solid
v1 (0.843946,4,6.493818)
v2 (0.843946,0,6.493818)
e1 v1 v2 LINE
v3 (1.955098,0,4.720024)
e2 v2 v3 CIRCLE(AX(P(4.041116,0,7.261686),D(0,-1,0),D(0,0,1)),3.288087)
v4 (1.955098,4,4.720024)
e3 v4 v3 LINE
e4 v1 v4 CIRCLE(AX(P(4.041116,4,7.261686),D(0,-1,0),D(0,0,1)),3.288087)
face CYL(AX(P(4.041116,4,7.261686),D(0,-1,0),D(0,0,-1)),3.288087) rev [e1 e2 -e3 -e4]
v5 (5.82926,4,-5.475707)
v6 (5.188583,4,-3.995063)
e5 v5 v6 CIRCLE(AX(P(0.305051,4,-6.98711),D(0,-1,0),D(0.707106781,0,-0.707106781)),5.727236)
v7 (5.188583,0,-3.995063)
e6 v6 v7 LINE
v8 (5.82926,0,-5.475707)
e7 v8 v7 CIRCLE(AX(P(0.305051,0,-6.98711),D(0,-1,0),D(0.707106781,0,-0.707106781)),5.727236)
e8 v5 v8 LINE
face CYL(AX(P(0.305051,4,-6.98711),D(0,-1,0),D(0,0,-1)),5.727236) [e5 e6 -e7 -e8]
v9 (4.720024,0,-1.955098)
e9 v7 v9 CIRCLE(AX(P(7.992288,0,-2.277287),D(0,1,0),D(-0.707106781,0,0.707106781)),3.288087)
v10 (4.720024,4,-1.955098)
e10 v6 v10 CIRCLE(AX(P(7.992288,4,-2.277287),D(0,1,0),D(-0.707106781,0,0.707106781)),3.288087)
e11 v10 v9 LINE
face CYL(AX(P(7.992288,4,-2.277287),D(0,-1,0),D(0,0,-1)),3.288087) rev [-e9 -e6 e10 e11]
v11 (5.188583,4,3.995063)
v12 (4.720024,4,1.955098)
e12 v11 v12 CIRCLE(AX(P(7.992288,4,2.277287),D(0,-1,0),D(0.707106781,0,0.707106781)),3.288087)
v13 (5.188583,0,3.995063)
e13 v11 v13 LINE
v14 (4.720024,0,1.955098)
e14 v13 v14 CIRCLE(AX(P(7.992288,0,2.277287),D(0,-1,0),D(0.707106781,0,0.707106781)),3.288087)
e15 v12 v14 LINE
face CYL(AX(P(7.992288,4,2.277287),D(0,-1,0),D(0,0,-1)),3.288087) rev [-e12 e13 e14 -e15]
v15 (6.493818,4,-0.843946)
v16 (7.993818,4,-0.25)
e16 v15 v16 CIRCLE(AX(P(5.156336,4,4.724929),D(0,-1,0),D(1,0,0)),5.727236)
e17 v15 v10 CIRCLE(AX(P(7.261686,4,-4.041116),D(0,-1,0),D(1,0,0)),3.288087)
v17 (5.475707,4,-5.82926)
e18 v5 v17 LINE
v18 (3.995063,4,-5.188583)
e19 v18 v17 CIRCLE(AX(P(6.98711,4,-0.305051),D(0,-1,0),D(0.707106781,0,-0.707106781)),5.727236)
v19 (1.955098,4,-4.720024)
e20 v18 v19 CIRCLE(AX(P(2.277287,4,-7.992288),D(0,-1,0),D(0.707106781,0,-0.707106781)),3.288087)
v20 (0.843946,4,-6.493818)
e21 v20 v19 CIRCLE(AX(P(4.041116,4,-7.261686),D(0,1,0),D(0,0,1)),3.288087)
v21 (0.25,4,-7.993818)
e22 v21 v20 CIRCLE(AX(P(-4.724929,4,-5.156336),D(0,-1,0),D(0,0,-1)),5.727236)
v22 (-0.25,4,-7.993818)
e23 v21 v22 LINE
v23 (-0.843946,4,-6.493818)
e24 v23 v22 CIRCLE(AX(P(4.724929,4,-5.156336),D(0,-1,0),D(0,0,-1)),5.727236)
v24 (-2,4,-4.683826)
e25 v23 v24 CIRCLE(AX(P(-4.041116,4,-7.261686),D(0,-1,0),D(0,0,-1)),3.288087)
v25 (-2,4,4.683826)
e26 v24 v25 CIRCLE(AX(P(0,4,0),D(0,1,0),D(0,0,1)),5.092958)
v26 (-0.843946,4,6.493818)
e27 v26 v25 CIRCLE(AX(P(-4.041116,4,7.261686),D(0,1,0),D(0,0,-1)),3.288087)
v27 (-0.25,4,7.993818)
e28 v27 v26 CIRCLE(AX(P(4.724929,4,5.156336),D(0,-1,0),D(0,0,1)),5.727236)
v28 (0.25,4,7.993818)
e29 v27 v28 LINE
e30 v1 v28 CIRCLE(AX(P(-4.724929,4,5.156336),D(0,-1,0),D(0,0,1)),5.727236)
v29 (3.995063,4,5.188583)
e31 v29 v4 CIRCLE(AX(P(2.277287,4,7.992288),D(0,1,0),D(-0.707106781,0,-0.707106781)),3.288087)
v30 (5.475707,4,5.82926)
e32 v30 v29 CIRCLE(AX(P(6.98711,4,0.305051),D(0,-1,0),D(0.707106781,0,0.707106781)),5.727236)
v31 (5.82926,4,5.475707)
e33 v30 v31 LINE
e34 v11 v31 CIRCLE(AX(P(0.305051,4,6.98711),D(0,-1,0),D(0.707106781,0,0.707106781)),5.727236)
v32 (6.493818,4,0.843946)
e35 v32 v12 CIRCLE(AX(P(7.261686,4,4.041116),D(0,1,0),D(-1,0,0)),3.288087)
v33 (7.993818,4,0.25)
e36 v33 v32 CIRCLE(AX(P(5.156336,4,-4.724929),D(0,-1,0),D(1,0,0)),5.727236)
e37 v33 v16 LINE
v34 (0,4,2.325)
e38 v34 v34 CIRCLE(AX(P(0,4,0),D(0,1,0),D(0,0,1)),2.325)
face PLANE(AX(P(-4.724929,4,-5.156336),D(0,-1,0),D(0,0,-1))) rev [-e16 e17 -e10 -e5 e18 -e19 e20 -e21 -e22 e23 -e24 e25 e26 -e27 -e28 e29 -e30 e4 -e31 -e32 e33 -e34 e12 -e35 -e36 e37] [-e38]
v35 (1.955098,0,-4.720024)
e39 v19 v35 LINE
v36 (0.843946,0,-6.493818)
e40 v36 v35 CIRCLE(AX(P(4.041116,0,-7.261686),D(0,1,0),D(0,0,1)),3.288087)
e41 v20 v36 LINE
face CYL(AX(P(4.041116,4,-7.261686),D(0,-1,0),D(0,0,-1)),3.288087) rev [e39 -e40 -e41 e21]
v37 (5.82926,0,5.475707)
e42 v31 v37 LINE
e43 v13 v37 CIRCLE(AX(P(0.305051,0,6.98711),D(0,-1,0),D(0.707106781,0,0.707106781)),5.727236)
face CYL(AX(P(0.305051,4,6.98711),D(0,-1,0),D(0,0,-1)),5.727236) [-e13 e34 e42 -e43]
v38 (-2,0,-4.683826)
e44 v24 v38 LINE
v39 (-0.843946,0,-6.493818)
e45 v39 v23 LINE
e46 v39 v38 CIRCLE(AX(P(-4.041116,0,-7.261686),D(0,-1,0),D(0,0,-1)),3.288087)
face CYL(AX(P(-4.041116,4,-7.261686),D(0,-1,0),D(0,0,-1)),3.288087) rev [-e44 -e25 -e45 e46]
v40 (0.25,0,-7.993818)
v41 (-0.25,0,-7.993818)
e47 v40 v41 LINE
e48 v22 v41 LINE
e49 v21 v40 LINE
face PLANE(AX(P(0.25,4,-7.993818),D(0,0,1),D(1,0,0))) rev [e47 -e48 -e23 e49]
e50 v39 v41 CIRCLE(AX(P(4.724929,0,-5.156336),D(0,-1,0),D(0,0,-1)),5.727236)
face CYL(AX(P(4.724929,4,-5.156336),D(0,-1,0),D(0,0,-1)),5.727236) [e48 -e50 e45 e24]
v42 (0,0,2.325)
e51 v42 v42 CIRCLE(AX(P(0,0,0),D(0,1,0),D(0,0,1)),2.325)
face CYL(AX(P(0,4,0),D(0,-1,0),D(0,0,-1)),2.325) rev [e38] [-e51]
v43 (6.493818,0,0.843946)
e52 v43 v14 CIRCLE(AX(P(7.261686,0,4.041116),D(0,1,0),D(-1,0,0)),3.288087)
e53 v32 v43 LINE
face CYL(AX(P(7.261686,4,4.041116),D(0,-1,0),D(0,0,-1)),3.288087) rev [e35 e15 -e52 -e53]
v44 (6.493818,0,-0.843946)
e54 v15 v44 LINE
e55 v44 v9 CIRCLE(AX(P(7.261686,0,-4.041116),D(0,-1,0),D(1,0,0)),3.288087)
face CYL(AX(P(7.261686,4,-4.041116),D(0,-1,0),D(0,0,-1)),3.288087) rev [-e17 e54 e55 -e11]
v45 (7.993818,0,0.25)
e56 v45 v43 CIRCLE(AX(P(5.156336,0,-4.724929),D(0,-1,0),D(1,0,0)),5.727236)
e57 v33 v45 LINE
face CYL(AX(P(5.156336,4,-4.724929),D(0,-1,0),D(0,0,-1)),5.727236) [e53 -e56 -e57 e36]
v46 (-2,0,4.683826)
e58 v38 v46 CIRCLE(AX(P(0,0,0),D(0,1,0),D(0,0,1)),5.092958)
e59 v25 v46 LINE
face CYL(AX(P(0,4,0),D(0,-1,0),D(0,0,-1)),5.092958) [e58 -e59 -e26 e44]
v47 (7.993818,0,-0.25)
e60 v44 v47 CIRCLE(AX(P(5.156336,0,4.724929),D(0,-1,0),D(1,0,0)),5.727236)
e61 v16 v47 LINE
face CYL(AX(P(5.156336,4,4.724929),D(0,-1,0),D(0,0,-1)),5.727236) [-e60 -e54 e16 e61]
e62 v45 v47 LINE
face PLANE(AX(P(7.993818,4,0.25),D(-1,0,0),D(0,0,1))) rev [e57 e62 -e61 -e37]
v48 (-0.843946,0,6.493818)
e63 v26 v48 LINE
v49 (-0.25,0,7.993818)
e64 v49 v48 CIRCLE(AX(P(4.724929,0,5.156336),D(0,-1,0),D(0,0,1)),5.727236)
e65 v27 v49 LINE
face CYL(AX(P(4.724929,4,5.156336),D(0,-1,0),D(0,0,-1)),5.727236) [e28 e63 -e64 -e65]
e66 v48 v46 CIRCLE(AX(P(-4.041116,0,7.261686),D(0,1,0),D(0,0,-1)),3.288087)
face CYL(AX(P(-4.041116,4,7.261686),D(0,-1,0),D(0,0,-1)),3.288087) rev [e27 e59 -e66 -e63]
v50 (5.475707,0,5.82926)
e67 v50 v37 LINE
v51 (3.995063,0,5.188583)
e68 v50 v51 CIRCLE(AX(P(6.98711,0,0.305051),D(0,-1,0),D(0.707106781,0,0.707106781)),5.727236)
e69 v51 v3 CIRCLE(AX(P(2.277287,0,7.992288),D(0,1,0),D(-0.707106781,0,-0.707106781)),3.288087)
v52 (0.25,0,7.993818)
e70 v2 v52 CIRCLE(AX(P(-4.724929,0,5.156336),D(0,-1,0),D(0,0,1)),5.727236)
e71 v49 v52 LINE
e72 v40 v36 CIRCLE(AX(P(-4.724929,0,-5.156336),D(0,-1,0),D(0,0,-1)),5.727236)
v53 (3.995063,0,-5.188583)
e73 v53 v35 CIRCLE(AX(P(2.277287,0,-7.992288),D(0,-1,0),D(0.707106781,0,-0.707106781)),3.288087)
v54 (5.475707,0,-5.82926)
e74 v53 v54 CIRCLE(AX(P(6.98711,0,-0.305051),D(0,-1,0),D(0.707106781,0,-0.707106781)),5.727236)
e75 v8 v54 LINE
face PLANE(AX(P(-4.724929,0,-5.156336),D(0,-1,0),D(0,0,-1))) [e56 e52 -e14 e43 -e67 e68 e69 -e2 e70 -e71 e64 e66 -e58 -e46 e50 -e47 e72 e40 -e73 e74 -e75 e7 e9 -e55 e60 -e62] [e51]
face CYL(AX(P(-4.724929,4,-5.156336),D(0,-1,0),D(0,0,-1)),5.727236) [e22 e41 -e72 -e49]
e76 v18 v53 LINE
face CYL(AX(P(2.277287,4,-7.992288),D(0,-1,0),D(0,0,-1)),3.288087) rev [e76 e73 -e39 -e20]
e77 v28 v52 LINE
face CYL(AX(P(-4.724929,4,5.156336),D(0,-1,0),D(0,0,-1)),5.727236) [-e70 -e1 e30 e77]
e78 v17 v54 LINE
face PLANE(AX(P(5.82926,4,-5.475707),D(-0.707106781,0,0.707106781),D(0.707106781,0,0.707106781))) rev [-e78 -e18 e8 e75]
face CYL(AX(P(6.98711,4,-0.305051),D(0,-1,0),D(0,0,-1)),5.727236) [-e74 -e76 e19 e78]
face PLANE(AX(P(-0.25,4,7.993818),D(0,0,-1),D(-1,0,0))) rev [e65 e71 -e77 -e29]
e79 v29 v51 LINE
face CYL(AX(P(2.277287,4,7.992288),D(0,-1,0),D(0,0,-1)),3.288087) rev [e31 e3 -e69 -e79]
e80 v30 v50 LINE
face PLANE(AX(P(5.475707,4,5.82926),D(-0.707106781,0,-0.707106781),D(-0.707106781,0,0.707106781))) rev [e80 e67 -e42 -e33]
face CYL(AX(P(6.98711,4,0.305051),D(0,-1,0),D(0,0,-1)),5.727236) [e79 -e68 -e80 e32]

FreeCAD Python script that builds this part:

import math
import FreeCAD as App
import Part
import Sketcher
from FreeCAD import Vector
Q = App.Units.Quantity

doc = App.newDocument("Part")
body = doc.addObject("PartDesign::Body", "Body")

sketch1 = body.newObject("Sketcher::SketchObject", "Sketch")
sketch1.AttachmentSupport = (doc.getObject("XZ_Plane"), [""])
sketch1.MapMode = "FlatFace"
sketch1.addGeometry([
    Part.ArcOfCircle(Part.Circle(Vector(-4.724929, -5.156336, 0), Vector(0, 0, 1), 5.727236), math.radians(-29.698546), math.radians(-13.504997)),
    Part.LineSegment(Vector(0.25, -7.993818, 0), Vector(-0.25, -7.993818, 0)),
    Part.ArcOfCircle(Part.Circle(Vector(4.724929, -5.156336, 0), Vector(0, 0, 1), 5.727236), math.radians(-166.495003), math.radians(-150.301454)),
    Part.ArcOfCircle(Part.Circle(Vector(-4.041116, -7.261686, 0), Vector(0, 0, 1), 3.288087), math.radians(13.504997), math.radians(51.628281)),
    Part.LineSegment(Vector(-2, -4.683826, 0), Vector(2, -4.683826, 0)),
    Part.ArcOfCircle(Part.Circle(Vector(4.041116, -7.261686, 0), Vector(0, 0, 1), 3.288087), math.radians(128.371719), math.radians(166.495003)),
], False)
sketch1.addConstraint([
    Sketcher.Constraint("Coincident", 0, 1, 1, 1),
    Sketcher.Constraint("Coincident", 1, 2, 2, 2),
    Sketcher.Constraint("Tangent", 2, 1, 3, 1),
    Sketcher.Constraint("Coincident", 3, 2, 4, 1),
    Sketcher.Constraint("Coincident", 4, 2, 5, 1),
    Sketcher.Constraint("Tangent", 5, 2, 0, 2),
    Sketcher.Constraint("Horizontal", 1),
    Sketcher.Constraint("Horizontal", 4),
    Sketcher.Constraint("Equal", 0, 2),
    Sketcher.Constraint("Equal", 3, 5),
    Sketcher.Constraint("Symmetric", 0, 3, 2, 3, -2),
    Sketcher.Constraint("Horizontal", 3, 3, 5, 3),
    Sketcher.Constraint("DistanceX", 4, 1, 4, 2, Q("4 mm")),
    Sketcher.Constraint("DistanceX", 1, 2, 1, 1, Q("0.5 mm")),
    Sketcher.Constraint("DistanceY", 1, 2, 2, 1, Q("1.5 mm")),
    Sketcher.Constraint("Radius", 0, Q("5.727236 mm")),
    Sketcher.Constraint("Radius", 3, Q("3.288087 mm")),
    Sketcher.Constraint("DistanceX", 0, 3, -1, 1, Q("4.724929 mm")),
    Sketcher.Constraint("DistanceY", 0, 1, -1, 1, Q("7.993818 mm")),
])
pad1 = body.newObject("PartDesign::Pad", "Pad")
pad1.Profile = sketch1
pad1.Length = 4
pad1.Reversed = True
doc.recompute()

polarpattern = body.newObject("PartDesign::PolarPattern", "PolarPattern")
polarpattern.Originals = [pad1]
polarpattern.Axis = (doc.getObject("Y_Axis"), [""])
polarpattern.Angle = 180
polarpattern.Occurrences = 5
polarpattern.Reversed = True
body.Tip = polarpattern

sketch2 = body.newObject("Sketcher::SketchObject", "Sketch001")
sketch2.AttachmentSupport = (doc.getObject("XZ_Plane"), [""])
sketch2.MapMode = "FlatFace"
sketch2.addGeometry([
    Part.ArcOfCircle(Part.Circle(Vector(0, 0, 0), Vector(0, 0, 1), 5.092958), math.radians(-66.877451), math.radians(0)),
    Part.LineSegment(Vector(2, -4.683826, 0), Vector(-2, -4.683826, 0)),
    Part.ArcOfCircle(Part.Circle(Vector(0, 0, 0), Vector(0, 0, 1), 5.092958), math.radians(0), math.radians(246.877451)),
    Part.ArcOfCircle(Part.Circle(Vector(0, 0, 0), Vector(0, 0, 1), 2.325), math.radians(0), math.radians(67.627855)),
    Part.ArcOfCircle(Part.Circle(Vector(0, 0, 0), Vector(0, 0, 1), 2.325), math.radians(67.627854), math.radians(90)),
    Part.ArcOfCircle(Part.Circle(Vector(0, 0, 0), Vector(0, 0, 1), 2.325), math.radians(90), math.radians(112.372146)),
    Part.ArcOfCircle(Part.Circle(Vector(0, 0, 0), Vector(0, 0, 1), 2.325), math.radians(112.372145), math.radians(270)),
    Part.ArcOfCircle(Part.Circle(Vector(0, 0, 0), Vector(0, 0, 1), 2.325), math.radians(-90), math.radians(0)),
], False)
sketch2.addConstraint([
    Sketcher.Constraint("Coincident", 0, 1, 1, 1),
    Sketcher.Constraint("Coincident", 1, 2, 2, 2),
    Sketcher.Constraint("Tangent", 2, 1, 0, 2),
    Sketcher.Constraint("Tangent", 3, 2, 4, 1),
    Sketcher.Constraint("Tangent", 4, 2, 5, 1),
    Sketcher.Constraint("Tangent", 5, 2, 6, 1),
    Sketcher.Constraint("Tangent", 6, 2, 7, 1),
    Sketcher.Constraint("Tangent", 7, 2, 3, 1),
    Sketcher.Constraint("Horizontal", 1),
    Sketcher.Constraint("Coincident", 0, 3, -1, 1),
    Sketcher.Constraint("Coincident", 3, 3, -1, 1),
    Sketcher.Constraint("Coincident", 5, 3, -1, 1),
    Sketcher.Constraint("Equal", 0, 2),
    Sketcher.Constraint("PointOnObject", 2, 1, -1),
    Sketcher.Constraint("PointOnObject", 4, 2, -2),
    Sketcher.Constraint("PointOnObject", 6, 2, -2),
    Sketcher.Constraint("PointOnObject", 7, 2, -1),
    Sketcher.Constraint("Horizontal", 3, 2, 5, 2),
    Sketcher.Constraint("DistanceX", 1, 2, 1, 1, Q("4 mm")),
    Sketcher.Constraint("Radius", 3, Q("2.325 mm")),
    Sketcher.Constraint("DistanceY", -1, 1, 3, 2, Q("2.15 mm")),
    Sketcher.Constraint("Radius", 0, Q("5.092958 mm")),
])
pad2 = body.newObject("PartDesign::Pad", "Pad001")
pad2.Profile = sketch2
pad2.Length = 4
pad2.Reversed = True

doc.recompute()
